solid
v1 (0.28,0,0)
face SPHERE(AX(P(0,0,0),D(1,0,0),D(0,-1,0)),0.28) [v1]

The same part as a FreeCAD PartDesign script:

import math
import FreeCAD as App
import Part
import Sketcher
from FreeCAD import Vector
Q = App.Units.Quantity

doc = App.newDocument("Part")
params = doc.addObject("Spreadsheet::Sheet", "Params")
for row, (alias, value) in enumerate([
    ("sketch1_radius", "0.28 mm"),
    ("revolution_angle", "360 deg"),
], start=1):
    params.set(f"A{row}", alias)
    params.set(f"B{row}", "=" + value)
    params.setAlias(f"B{row}", alias)

body = doc.addObject("PartDesign::Body", "Body")

sketch1 = body.newObject("Sketcher::SketchObject", "Sketch")
sketch1.AttachmentSupport = (doc.getObject("XY_Plane"), [""])
sketch1.MapMode = "FlatFace"
sketch1.addGeometry(Part.LineSegment(Vector(-0.28, 0, 0), Vector(0.28, 0, 0)), False)
sketch1.addGeometry(Part.ArcOfCircle(Part.Circle(Vector(0, 0, 0), Vector(0, 0, 1), 0.28), math.radians(0), math.radians(180)), False)
sketch1.addConstraint(Sketcher.Constraint("Coincident", 0, 1, 1, 2))
sketch1.addConstraint(Sketcher.Constraint("Coincident", 1, 1, 0, 2))
sketch1.addConstraint(Sketcher.Constraint("Horizontal", 0))
sketch1.addConstraint(Sketcher.Constraint("Coincident", 1, 3, -1, 1))
sketch1.addConstraint(Sketcher.Constraint("PointOnObject", 0, 1, -1))
sketch1.addConstraint(Sketcher.Constraint("Radius", 1, Q("0.28 mm")))
sketch1.setExpression("Constraints[5]", "Params.sketch1_radius")
revolution = body.newObject("PartDesign::Revolution", "Revolution")
revolution.Profile = sketch1
revolution.ReferenceAxis = (sketch1, ["H_Axis"])
revolution.setExpression("Angle", "Params.revolution_angle")

doc.recompute()
